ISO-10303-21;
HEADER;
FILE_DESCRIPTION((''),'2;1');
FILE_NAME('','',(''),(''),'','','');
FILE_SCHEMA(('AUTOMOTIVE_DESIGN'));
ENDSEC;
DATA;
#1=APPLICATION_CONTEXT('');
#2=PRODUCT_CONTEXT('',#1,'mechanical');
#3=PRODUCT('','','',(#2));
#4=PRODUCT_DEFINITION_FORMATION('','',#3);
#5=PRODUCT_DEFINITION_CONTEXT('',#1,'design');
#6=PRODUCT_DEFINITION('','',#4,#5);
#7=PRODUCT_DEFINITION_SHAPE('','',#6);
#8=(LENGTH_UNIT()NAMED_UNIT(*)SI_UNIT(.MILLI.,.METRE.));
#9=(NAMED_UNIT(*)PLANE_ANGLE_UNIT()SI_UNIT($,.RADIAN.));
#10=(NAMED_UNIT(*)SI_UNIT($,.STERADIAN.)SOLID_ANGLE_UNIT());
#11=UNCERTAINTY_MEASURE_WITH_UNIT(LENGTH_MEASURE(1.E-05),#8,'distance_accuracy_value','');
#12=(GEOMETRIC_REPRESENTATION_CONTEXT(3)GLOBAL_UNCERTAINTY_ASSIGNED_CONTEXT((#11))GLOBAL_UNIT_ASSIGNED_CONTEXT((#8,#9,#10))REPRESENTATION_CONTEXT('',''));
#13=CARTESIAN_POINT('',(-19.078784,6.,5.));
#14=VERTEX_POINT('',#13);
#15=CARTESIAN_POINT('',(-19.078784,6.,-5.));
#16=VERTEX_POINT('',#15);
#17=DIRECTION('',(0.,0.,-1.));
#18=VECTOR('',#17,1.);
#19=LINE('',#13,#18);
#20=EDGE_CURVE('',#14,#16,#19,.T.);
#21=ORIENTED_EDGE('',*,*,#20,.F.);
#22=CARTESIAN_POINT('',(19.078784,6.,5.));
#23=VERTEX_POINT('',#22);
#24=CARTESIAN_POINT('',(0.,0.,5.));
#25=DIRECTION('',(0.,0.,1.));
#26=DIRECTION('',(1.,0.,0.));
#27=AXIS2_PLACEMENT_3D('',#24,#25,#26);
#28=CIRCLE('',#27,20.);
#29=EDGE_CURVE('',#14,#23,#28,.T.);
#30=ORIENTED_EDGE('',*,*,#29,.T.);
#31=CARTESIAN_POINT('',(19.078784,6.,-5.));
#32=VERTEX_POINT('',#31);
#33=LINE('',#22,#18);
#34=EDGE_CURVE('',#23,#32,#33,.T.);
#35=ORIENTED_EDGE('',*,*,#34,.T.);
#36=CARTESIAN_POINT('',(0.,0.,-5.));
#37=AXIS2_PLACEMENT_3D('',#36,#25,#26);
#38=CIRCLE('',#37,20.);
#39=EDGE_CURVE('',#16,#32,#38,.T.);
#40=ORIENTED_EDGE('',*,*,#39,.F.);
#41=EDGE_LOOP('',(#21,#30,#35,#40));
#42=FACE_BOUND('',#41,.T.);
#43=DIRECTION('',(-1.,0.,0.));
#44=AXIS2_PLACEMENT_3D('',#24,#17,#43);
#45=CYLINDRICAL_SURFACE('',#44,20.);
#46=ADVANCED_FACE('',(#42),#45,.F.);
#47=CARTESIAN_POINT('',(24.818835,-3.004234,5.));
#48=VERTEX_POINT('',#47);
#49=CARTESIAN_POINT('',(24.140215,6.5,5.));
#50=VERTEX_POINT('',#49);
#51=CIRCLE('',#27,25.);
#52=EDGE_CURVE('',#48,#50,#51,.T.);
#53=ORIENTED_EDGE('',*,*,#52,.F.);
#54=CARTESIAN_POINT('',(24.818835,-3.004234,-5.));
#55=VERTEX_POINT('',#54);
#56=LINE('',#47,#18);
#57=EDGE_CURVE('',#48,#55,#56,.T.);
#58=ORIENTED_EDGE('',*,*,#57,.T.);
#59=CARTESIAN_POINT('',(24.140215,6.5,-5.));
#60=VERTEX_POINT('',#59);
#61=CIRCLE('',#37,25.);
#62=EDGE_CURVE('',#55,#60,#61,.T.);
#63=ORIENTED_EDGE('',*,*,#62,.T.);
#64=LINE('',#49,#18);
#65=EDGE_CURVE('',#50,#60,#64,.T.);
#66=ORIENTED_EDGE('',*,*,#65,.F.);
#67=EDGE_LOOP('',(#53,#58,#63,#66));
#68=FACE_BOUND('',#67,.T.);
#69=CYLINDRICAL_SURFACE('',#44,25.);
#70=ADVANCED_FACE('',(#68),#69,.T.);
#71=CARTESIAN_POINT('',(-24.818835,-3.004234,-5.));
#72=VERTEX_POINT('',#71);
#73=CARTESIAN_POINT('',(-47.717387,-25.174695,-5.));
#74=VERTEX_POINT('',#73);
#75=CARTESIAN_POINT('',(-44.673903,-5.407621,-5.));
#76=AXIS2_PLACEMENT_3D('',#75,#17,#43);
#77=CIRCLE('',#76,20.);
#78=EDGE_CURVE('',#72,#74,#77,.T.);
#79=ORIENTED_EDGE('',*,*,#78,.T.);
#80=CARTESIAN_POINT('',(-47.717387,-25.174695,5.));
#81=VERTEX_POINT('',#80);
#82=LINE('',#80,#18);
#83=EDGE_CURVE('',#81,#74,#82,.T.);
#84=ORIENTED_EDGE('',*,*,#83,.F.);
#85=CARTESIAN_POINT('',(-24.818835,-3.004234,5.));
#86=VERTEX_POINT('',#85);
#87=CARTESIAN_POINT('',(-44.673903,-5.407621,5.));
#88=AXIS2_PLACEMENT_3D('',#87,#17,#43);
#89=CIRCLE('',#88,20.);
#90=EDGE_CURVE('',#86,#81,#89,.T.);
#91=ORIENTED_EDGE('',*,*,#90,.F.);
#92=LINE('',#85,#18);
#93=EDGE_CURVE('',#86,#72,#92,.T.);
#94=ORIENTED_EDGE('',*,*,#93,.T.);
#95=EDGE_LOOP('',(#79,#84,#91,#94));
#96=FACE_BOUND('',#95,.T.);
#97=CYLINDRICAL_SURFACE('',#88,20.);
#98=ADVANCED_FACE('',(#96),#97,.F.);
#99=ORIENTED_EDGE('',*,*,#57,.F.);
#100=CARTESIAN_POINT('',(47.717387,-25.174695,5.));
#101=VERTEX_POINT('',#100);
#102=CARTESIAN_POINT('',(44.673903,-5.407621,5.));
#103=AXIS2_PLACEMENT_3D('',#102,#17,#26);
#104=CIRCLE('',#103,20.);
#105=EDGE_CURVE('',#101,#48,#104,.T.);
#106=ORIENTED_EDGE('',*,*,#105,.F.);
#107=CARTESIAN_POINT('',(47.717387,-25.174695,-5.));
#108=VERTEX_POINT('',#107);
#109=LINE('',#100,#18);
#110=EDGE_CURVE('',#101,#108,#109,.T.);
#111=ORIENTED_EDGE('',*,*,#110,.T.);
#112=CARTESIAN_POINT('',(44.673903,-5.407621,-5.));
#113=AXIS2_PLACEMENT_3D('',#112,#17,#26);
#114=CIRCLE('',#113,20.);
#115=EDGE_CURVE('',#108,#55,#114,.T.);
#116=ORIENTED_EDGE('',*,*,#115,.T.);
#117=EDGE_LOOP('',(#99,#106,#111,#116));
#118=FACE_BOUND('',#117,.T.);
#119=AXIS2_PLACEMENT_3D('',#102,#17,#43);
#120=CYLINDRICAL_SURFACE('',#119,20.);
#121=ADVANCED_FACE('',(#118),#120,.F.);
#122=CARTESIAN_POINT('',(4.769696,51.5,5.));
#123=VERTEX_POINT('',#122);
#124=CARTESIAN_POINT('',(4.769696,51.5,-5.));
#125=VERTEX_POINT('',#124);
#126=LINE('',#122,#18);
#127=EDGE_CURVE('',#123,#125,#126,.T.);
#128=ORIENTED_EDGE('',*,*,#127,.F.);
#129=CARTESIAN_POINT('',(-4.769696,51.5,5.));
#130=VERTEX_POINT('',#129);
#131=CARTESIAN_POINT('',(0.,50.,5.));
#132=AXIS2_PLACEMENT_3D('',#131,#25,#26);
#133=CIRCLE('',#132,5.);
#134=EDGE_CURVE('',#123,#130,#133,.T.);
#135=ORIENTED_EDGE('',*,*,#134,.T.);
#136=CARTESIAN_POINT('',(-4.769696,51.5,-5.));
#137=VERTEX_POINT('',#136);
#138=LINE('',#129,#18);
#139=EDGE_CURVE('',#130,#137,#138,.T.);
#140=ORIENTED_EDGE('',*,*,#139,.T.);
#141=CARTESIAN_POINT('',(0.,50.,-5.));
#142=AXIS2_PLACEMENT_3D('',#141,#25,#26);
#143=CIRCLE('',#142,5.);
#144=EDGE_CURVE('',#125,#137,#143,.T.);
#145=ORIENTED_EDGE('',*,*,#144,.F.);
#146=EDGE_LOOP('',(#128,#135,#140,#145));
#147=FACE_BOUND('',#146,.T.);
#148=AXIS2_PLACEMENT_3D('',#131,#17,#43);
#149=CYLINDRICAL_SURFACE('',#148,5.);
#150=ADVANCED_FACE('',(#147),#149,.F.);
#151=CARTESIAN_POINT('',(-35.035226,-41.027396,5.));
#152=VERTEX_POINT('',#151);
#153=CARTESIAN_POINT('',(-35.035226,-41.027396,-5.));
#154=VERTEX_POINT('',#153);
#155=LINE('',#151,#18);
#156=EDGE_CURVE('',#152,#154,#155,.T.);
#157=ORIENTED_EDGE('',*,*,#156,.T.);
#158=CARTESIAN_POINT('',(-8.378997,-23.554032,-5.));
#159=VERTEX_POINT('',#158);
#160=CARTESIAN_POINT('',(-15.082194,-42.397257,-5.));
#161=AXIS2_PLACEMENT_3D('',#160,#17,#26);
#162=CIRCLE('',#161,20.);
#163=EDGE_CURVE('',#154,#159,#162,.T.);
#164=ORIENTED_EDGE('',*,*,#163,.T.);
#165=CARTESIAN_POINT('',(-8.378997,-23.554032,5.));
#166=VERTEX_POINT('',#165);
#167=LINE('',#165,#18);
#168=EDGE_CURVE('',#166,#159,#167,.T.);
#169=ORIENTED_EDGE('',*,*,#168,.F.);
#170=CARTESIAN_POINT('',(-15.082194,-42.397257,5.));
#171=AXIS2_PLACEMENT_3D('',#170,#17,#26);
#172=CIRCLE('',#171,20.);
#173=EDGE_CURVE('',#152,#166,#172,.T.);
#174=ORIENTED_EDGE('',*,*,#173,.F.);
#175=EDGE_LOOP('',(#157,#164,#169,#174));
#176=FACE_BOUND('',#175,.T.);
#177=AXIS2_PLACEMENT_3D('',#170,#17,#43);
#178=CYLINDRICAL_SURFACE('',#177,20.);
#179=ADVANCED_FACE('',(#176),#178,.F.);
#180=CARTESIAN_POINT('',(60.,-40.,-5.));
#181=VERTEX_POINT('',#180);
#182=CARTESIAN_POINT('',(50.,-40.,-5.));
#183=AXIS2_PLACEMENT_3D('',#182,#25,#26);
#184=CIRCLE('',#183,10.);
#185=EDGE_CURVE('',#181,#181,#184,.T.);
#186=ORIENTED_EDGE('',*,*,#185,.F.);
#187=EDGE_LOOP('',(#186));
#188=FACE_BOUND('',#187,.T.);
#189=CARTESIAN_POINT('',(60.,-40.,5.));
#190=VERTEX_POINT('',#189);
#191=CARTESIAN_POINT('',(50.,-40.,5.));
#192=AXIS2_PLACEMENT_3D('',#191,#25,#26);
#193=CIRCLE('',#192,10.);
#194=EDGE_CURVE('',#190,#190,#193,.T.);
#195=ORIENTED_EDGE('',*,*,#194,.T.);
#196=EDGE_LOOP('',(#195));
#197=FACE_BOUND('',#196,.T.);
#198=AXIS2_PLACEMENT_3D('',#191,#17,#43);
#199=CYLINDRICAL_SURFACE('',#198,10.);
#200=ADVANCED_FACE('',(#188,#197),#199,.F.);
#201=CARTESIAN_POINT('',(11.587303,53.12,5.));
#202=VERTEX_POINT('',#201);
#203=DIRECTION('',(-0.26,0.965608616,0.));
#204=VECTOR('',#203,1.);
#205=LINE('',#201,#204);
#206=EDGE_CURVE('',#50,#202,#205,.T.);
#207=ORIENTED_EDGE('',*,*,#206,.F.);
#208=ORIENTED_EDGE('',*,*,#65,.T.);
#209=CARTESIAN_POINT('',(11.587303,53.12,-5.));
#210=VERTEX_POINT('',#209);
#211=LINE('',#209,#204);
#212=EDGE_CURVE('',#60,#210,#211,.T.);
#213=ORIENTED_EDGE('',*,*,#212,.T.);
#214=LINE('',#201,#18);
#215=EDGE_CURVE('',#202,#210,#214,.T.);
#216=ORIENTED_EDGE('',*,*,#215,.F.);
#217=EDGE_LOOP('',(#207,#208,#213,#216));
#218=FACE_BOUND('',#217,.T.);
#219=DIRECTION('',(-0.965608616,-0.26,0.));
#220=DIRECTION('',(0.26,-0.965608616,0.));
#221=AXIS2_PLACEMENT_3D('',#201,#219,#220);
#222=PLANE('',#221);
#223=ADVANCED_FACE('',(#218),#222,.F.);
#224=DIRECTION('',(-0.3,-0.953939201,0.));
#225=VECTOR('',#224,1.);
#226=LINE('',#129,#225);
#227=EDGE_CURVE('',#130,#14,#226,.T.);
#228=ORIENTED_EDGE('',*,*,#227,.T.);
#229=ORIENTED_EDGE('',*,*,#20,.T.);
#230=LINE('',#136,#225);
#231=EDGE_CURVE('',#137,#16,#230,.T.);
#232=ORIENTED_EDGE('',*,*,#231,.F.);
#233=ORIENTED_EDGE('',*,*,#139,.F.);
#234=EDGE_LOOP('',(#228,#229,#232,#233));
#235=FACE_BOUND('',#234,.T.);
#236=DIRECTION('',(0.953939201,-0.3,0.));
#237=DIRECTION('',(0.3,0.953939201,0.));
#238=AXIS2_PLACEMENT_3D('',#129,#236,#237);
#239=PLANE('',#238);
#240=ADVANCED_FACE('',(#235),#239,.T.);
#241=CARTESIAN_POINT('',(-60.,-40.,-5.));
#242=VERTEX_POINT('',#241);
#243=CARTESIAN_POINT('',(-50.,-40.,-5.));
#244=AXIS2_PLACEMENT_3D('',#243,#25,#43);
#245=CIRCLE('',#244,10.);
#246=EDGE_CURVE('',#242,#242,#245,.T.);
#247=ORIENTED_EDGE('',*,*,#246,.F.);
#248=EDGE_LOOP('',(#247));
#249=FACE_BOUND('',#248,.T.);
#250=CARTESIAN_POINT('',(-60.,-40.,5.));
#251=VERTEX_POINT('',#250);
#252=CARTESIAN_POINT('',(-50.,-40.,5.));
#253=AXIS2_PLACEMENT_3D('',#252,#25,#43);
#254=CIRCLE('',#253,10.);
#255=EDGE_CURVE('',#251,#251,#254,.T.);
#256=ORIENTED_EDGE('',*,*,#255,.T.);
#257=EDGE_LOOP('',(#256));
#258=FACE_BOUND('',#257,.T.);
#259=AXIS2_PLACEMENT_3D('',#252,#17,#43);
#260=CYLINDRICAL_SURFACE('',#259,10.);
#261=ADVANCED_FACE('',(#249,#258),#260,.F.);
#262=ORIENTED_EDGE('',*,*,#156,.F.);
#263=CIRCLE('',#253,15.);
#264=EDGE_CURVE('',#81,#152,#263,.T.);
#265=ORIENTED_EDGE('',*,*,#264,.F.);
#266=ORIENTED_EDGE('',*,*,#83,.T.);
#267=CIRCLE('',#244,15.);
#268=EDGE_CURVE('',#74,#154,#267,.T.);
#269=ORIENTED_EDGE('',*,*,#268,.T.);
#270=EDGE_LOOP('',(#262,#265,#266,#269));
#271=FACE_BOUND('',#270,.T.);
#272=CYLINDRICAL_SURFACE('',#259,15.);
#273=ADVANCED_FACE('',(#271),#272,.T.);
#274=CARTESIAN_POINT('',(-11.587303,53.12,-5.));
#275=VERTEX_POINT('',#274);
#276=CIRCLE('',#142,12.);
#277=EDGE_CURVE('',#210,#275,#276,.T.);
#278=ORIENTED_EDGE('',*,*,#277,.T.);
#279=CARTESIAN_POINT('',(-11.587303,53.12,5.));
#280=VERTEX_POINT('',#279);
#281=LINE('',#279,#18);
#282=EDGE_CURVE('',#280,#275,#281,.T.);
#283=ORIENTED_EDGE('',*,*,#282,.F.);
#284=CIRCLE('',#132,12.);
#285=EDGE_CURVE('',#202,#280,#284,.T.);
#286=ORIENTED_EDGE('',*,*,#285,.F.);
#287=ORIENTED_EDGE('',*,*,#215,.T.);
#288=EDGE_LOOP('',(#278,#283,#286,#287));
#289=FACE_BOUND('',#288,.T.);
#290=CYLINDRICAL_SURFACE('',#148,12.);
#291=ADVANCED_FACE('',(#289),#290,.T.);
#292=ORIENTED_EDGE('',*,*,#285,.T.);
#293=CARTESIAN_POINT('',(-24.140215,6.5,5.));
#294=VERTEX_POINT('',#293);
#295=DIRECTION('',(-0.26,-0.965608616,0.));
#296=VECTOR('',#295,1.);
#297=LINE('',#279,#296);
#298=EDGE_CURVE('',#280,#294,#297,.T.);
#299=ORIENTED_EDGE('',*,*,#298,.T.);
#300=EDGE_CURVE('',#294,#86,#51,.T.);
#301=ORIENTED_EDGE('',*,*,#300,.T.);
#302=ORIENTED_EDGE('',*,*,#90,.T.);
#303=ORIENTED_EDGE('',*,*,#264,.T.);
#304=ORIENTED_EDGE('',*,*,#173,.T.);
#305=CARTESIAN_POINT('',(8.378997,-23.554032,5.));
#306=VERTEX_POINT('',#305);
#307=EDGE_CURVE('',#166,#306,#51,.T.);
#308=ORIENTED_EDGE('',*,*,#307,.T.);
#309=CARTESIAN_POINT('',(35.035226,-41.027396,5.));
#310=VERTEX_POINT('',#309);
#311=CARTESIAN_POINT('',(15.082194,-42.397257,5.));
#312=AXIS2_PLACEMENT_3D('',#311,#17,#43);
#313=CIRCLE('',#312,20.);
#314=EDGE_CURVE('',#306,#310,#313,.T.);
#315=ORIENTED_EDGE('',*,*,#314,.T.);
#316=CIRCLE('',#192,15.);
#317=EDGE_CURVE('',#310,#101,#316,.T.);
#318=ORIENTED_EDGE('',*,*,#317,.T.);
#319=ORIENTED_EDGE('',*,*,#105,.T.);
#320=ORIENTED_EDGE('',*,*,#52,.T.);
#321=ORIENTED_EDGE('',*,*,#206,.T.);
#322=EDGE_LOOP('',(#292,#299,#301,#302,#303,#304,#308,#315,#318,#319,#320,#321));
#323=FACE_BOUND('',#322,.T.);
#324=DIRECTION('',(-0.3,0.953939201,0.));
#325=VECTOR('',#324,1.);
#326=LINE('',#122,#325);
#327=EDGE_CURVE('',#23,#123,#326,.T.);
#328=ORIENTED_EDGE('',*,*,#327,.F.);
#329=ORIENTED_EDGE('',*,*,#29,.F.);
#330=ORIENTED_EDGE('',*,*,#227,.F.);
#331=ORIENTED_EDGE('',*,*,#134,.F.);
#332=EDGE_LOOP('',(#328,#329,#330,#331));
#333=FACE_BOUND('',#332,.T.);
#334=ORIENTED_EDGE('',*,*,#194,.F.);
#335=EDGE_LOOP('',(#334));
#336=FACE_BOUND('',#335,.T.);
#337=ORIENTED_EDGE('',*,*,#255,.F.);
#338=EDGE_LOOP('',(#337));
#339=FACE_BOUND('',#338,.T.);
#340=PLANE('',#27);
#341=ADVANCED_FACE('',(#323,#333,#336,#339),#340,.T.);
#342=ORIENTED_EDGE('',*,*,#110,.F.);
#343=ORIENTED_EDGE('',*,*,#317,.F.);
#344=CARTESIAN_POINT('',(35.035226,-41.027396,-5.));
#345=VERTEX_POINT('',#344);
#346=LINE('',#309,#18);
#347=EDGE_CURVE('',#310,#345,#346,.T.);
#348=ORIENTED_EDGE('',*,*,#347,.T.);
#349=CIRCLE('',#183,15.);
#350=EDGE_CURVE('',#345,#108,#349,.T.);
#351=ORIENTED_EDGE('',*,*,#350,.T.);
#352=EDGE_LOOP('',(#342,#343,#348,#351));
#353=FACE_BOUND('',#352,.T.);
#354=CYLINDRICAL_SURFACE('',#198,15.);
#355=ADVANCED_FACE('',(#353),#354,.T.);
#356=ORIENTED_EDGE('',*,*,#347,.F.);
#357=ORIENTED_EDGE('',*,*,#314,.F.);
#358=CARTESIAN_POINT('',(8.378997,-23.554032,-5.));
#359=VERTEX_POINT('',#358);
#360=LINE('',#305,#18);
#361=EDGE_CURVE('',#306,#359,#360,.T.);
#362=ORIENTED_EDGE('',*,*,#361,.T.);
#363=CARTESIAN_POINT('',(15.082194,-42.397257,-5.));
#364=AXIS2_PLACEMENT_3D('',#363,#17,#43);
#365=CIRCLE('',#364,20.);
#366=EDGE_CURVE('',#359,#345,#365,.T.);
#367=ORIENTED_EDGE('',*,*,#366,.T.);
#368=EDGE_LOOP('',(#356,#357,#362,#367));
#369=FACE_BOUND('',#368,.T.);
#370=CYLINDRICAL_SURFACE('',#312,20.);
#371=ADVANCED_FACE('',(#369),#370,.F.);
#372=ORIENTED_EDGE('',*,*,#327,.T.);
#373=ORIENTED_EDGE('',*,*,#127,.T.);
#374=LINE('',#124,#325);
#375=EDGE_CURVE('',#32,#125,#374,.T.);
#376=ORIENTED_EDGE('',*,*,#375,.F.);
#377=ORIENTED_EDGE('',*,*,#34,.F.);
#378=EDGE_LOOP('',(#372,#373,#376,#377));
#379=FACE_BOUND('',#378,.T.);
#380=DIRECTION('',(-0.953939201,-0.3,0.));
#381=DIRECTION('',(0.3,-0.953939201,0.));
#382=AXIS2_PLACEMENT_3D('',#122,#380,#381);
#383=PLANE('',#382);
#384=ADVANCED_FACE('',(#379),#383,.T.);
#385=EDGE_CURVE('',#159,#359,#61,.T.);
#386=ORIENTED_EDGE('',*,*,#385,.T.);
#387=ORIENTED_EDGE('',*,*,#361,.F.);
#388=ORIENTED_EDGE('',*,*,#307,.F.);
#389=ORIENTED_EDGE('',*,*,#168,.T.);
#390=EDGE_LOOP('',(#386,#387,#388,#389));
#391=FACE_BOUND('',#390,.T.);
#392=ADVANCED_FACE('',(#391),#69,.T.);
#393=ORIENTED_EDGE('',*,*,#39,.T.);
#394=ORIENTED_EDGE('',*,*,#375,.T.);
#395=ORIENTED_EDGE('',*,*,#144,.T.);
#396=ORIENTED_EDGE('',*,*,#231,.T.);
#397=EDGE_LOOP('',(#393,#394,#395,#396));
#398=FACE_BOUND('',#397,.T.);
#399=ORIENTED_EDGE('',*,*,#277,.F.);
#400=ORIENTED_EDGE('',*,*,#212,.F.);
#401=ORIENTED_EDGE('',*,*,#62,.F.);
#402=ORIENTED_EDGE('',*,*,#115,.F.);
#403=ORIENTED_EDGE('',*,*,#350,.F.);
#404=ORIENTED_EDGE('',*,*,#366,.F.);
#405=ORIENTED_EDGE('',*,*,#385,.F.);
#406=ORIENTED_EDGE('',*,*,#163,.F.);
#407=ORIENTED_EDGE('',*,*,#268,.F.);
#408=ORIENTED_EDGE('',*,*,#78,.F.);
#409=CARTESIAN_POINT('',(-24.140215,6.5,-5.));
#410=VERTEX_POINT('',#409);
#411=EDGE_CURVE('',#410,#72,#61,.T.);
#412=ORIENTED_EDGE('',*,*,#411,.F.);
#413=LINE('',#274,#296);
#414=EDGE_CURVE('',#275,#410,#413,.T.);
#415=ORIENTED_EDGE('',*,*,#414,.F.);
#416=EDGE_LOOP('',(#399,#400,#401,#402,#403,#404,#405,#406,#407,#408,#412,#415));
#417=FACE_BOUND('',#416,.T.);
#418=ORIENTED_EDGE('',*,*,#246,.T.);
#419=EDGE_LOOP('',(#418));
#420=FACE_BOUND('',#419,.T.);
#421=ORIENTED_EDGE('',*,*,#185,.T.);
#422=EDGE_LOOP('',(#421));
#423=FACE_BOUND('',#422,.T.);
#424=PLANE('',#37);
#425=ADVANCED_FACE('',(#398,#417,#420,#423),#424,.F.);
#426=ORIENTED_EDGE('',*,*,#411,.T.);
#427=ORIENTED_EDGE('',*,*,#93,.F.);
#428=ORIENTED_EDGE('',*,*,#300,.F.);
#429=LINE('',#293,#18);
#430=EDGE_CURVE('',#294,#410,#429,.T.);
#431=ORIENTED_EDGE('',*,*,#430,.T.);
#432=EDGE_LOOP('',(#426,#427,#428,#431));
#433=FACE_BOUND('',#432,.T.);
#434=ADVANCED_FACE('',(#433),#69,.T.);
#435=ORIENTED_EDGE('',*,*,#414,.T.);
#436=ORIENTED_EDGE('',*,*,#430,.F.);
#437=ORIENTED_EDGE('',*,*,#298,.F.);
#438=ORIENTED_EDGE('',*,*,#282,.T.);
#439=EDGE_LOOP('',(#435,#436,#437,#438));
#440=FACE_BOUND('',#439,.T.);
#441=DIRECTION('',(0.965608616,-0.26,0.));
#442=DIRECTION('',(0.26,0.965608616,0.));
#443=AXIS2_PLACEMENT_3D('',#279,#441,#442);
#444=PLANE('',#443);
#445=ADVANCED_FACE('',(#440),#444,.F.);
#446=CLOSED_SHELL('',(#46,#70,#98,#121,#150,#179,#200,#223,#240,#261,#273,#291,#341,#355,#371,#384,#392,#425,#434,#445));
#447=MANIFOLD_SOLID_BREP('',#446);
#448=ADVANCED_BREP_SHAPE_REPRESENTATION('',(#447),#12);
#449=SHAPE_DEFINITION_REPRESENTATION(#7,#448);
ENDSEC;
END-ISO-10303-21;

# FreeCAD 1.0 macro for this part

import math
import FreeCAD as App
import Part
import Sketcher
from FreeCAD import Vector
Q = App.Units.Quantity

doc = App.newDocument("Part")
params = doc.addObject("Spreadsheet::Sheet", "Params")
for row, (alias, value) in enumerate([
    ("sketch1_diameter", "20 mm"),
    ("sketch1_radius", "25 mm"),
    ("sketch1_radius2", "20 mm"),
    ("sketch1_radius3", "15 mm"),
    ("sketch1_radius4", "12 mm"),
    ("pad1_length", "10 mm"),
], start=1):
    params.set(f"A{row}", alias)
    params.set(f"B{row}", "=" + value)
    params.setAlias(f"B{row}", alias)

body = doc.addObject("PartDesign::Body", "Body")

# Sketch on XY plane
sketch1 = body.newObject("Sketcher::SketchObject", "Sketch")
sketch1.AttachmentSupport = (doc.getObject("XY_Plane"), [""])
sketch1.MapMode = "FlatFace"
sketch1.addGeometry([
    Part.LineSegment(Vector(-12, 53, 0), Vector(-24, 6, 0)),  # 0
    Part.ArcOfCircle(Part.Circle(Vector(0, 0, 0), Vector(0, 0, 1), 25), math.radians(165), math.radians(187)),  # 1
    Part.ArcOfCircle(Part.Circle(Vector(-45, -5, 0), Vector(0, 0, 1), 20), math.radians(-99), math.radians(7)),  # 2
    Part.ArcOfCircle(Part.Circle(Vector(-50, -40, 0), Vector(0, 0, 1), 15), math.radians(81), math.radians(356)),  # 3
    Part.ArcOfCircle(Part.Circle(Vector(-15, -42, 0), Vector(0, 0, 1), 20), math.radians(70), math.radians(176)),  # 4
    Part.ArcOfCircle(Part.Circle(Vector(0, 0, 0), Vector(0, 0, 1), 25), math.radians(-110), math.radians(-70)),  # 5
    Part.ArcOfCircle(Part.Circle(Vector(15, -42, 0), Vector(0, 0, 1), 20), math.radians(4), math.radians(110)),  # 6
    Part.ArcOfCircle(Part.Circle(Vector(50, -40, 0), Vector(0, 0, 1), 15), math.radians(-176), math.radians(99)),  # 7
    Part.ArcOfCircle(Part.Circle(Vector(45, -5, 0), Vector(0, 0, 1), 20), math.radians(173), math.radians(279)),  # 8
    Part.ArcOfCircle(Part.Circle(Vector(0, 0, 0), Vector(0, 0, 1), 25), math.radians(-7), math.radians(15)),  # 9
    Part.LineSegment(Vector(24, 6, 0), Vector(12, 53, 0)),  # 10
    Part.ArcOfCircle(Part.Circle(Vector(0, 50, 0), Vector(0, 0, 1), 12), math.radians(15), math.radians(165)),  # 11
    Part.Circle(Vector(-50, -40, 0), Vector(0, 0, 1), 10),  # 12
    Part.Circle(Vector(50, -40, 0), Vector(0, 0, 1), 10),  # 13
    Part.LineSegment(Vector(-19, 6, 0), Vector(-5, 52, 0)),  # 14
    Part.ArcOfCircle(Part.Circle(Vector(0, 50, 0), Vector(0, 0, 1), 5), math.radians(17), math.radians(163)),  # 15
    Part.LineSegment(Vector(5, 52, 0), Vector(19, 6, 0)),  # 16
    Part.ArcOfCircle(Part.Circle(Vector(0, 0, 0), Vector(0, 0, 1), 20), math.radians(163), math.radians(377)),  # 17
], False)
sketch1.addConstraint([
    Sketcher.Constraint("Tangent", 0, 2, 1, 1),
    Sketcher.Constraint("Tangent", 1, 2, 2, 2),
    Sketcher.Constraint("Tangent", 2, 1, 3, 1),
    Sketcher.Constraint("Tangent", 3, 2, 4, 2),
    Sketcher.Constraint("Tangent", 4, 1, 5, 1),
    Sketcher.Constraint("Tangent", 5, 2, 6, 2),
    Sketcher.Constraint("Tangent", 6, 1, 7, 1),
    Sketcher.Constraint("Tangent", 7, 2, 8, 2),
    Sketcher.Constraint("Tangent", 8, 1, 9, 1),
    Sketcher.Constraint("Tangent", 9, 2, 10, 1),
    Sketcher.Constraint("Tangent", 10, 2, 11, 1),
    Sketcher.Constraint("Tangent", 11, 2, 0, 1),
    Sketcher.Constraint("Tangent", 14, 2, 15, 2),
    Sketcher.Constraint("Tangent", 15, 1, 16, 1),
    Sketcher.Constraint("Tangent", 16, 2, 17, 2),
    Sketcher.Constraint("Tangent", 17, 1, 14, 1),
    Sketcher.Constraint("Coincident", 1, 3, -1, 1),
    Sketcher.Constraint("Coincident", 5, 3, -1, 1),
    Sketcher.Constraint("Coincident", 9, 3, -1, 1),
    Sketcher.Constraint("Coincident", 17, 3, -1, 1),
    Sketcher.Constraint("Coincident", 12, 3, 3, 3),
    Sketcher.Constraint("Coincident", 13, 3, 7, 3),
    Sketcher.Constraint("Coincident", 15, 3, 11, 3),
    Sketcher.Constraint("Equal", 2, 4),
    Sketcher.Constraint("Equal", 1, 5),
    Sketcher.Constraint("Equal", 4, 6),
    Sketcher.Constraint("Equal", 3, 7),
    Sketcher.Constraint("Equal", 6, 8),
    Sketcher.Constraint("Equal", 5, 9),
    Sketcher.Constraint("Equal", 12, 13),
    Sketcher.Constraint("Equal", 8, 17),
    Sketcher.Constraint("Symmetric", 3, 3, 7, 3, -2),
    Sketcher.Constraint("PointOnObject", 11, 3, -2),
    Sketcher.Constraint("Diameter", 12, Q("20 mm")),
    Sketcher.Constraint("Radius", 1, Q("25 mm")),
    Sketcher.Constraint("Radius", 2, Q("20 mm")),
    Sketcher.Constraint("Radius", 3, Q("15 mm")),
    Sketcher.Constraint("Radius", 11, Q("12 mm")),
    Sketcher.Constraint("Radius", 15, Q("5 mm")),
    Sketcher.Constraint("DistanceX", 3, 3, -1, 1, Q("50 mm")),
    Sketcher.Constraint("DistanceY", 3, 3, -1, 1, Q("40 mm")),
    Sketcher.Constraint("DistanceY", -1, 1, 11, 3, Q("50 mm")),
])
sketch1.setExpression("Constraints[33]", "Params.sketch1_diameter")
sketch1.setExpression("Constraints[34]", "Params.sketch1_radius")
sketch1.setExpression("Constraints[35]", "Params.sketch1_radius2")
sketch1.setExpression("Constraints[36]", "Params.sketch1_radius3")
sketch1.setExpression("Constraints[37]", "Params.sketch1_radius4")
pad1 = body.newObject("PartDesign::Pad", "Pad")
pad1.Profile = sketch1
pad1.setExpression("Length", "Params.pad1_length")
pad1.Midplane = True

doc.recompute()
